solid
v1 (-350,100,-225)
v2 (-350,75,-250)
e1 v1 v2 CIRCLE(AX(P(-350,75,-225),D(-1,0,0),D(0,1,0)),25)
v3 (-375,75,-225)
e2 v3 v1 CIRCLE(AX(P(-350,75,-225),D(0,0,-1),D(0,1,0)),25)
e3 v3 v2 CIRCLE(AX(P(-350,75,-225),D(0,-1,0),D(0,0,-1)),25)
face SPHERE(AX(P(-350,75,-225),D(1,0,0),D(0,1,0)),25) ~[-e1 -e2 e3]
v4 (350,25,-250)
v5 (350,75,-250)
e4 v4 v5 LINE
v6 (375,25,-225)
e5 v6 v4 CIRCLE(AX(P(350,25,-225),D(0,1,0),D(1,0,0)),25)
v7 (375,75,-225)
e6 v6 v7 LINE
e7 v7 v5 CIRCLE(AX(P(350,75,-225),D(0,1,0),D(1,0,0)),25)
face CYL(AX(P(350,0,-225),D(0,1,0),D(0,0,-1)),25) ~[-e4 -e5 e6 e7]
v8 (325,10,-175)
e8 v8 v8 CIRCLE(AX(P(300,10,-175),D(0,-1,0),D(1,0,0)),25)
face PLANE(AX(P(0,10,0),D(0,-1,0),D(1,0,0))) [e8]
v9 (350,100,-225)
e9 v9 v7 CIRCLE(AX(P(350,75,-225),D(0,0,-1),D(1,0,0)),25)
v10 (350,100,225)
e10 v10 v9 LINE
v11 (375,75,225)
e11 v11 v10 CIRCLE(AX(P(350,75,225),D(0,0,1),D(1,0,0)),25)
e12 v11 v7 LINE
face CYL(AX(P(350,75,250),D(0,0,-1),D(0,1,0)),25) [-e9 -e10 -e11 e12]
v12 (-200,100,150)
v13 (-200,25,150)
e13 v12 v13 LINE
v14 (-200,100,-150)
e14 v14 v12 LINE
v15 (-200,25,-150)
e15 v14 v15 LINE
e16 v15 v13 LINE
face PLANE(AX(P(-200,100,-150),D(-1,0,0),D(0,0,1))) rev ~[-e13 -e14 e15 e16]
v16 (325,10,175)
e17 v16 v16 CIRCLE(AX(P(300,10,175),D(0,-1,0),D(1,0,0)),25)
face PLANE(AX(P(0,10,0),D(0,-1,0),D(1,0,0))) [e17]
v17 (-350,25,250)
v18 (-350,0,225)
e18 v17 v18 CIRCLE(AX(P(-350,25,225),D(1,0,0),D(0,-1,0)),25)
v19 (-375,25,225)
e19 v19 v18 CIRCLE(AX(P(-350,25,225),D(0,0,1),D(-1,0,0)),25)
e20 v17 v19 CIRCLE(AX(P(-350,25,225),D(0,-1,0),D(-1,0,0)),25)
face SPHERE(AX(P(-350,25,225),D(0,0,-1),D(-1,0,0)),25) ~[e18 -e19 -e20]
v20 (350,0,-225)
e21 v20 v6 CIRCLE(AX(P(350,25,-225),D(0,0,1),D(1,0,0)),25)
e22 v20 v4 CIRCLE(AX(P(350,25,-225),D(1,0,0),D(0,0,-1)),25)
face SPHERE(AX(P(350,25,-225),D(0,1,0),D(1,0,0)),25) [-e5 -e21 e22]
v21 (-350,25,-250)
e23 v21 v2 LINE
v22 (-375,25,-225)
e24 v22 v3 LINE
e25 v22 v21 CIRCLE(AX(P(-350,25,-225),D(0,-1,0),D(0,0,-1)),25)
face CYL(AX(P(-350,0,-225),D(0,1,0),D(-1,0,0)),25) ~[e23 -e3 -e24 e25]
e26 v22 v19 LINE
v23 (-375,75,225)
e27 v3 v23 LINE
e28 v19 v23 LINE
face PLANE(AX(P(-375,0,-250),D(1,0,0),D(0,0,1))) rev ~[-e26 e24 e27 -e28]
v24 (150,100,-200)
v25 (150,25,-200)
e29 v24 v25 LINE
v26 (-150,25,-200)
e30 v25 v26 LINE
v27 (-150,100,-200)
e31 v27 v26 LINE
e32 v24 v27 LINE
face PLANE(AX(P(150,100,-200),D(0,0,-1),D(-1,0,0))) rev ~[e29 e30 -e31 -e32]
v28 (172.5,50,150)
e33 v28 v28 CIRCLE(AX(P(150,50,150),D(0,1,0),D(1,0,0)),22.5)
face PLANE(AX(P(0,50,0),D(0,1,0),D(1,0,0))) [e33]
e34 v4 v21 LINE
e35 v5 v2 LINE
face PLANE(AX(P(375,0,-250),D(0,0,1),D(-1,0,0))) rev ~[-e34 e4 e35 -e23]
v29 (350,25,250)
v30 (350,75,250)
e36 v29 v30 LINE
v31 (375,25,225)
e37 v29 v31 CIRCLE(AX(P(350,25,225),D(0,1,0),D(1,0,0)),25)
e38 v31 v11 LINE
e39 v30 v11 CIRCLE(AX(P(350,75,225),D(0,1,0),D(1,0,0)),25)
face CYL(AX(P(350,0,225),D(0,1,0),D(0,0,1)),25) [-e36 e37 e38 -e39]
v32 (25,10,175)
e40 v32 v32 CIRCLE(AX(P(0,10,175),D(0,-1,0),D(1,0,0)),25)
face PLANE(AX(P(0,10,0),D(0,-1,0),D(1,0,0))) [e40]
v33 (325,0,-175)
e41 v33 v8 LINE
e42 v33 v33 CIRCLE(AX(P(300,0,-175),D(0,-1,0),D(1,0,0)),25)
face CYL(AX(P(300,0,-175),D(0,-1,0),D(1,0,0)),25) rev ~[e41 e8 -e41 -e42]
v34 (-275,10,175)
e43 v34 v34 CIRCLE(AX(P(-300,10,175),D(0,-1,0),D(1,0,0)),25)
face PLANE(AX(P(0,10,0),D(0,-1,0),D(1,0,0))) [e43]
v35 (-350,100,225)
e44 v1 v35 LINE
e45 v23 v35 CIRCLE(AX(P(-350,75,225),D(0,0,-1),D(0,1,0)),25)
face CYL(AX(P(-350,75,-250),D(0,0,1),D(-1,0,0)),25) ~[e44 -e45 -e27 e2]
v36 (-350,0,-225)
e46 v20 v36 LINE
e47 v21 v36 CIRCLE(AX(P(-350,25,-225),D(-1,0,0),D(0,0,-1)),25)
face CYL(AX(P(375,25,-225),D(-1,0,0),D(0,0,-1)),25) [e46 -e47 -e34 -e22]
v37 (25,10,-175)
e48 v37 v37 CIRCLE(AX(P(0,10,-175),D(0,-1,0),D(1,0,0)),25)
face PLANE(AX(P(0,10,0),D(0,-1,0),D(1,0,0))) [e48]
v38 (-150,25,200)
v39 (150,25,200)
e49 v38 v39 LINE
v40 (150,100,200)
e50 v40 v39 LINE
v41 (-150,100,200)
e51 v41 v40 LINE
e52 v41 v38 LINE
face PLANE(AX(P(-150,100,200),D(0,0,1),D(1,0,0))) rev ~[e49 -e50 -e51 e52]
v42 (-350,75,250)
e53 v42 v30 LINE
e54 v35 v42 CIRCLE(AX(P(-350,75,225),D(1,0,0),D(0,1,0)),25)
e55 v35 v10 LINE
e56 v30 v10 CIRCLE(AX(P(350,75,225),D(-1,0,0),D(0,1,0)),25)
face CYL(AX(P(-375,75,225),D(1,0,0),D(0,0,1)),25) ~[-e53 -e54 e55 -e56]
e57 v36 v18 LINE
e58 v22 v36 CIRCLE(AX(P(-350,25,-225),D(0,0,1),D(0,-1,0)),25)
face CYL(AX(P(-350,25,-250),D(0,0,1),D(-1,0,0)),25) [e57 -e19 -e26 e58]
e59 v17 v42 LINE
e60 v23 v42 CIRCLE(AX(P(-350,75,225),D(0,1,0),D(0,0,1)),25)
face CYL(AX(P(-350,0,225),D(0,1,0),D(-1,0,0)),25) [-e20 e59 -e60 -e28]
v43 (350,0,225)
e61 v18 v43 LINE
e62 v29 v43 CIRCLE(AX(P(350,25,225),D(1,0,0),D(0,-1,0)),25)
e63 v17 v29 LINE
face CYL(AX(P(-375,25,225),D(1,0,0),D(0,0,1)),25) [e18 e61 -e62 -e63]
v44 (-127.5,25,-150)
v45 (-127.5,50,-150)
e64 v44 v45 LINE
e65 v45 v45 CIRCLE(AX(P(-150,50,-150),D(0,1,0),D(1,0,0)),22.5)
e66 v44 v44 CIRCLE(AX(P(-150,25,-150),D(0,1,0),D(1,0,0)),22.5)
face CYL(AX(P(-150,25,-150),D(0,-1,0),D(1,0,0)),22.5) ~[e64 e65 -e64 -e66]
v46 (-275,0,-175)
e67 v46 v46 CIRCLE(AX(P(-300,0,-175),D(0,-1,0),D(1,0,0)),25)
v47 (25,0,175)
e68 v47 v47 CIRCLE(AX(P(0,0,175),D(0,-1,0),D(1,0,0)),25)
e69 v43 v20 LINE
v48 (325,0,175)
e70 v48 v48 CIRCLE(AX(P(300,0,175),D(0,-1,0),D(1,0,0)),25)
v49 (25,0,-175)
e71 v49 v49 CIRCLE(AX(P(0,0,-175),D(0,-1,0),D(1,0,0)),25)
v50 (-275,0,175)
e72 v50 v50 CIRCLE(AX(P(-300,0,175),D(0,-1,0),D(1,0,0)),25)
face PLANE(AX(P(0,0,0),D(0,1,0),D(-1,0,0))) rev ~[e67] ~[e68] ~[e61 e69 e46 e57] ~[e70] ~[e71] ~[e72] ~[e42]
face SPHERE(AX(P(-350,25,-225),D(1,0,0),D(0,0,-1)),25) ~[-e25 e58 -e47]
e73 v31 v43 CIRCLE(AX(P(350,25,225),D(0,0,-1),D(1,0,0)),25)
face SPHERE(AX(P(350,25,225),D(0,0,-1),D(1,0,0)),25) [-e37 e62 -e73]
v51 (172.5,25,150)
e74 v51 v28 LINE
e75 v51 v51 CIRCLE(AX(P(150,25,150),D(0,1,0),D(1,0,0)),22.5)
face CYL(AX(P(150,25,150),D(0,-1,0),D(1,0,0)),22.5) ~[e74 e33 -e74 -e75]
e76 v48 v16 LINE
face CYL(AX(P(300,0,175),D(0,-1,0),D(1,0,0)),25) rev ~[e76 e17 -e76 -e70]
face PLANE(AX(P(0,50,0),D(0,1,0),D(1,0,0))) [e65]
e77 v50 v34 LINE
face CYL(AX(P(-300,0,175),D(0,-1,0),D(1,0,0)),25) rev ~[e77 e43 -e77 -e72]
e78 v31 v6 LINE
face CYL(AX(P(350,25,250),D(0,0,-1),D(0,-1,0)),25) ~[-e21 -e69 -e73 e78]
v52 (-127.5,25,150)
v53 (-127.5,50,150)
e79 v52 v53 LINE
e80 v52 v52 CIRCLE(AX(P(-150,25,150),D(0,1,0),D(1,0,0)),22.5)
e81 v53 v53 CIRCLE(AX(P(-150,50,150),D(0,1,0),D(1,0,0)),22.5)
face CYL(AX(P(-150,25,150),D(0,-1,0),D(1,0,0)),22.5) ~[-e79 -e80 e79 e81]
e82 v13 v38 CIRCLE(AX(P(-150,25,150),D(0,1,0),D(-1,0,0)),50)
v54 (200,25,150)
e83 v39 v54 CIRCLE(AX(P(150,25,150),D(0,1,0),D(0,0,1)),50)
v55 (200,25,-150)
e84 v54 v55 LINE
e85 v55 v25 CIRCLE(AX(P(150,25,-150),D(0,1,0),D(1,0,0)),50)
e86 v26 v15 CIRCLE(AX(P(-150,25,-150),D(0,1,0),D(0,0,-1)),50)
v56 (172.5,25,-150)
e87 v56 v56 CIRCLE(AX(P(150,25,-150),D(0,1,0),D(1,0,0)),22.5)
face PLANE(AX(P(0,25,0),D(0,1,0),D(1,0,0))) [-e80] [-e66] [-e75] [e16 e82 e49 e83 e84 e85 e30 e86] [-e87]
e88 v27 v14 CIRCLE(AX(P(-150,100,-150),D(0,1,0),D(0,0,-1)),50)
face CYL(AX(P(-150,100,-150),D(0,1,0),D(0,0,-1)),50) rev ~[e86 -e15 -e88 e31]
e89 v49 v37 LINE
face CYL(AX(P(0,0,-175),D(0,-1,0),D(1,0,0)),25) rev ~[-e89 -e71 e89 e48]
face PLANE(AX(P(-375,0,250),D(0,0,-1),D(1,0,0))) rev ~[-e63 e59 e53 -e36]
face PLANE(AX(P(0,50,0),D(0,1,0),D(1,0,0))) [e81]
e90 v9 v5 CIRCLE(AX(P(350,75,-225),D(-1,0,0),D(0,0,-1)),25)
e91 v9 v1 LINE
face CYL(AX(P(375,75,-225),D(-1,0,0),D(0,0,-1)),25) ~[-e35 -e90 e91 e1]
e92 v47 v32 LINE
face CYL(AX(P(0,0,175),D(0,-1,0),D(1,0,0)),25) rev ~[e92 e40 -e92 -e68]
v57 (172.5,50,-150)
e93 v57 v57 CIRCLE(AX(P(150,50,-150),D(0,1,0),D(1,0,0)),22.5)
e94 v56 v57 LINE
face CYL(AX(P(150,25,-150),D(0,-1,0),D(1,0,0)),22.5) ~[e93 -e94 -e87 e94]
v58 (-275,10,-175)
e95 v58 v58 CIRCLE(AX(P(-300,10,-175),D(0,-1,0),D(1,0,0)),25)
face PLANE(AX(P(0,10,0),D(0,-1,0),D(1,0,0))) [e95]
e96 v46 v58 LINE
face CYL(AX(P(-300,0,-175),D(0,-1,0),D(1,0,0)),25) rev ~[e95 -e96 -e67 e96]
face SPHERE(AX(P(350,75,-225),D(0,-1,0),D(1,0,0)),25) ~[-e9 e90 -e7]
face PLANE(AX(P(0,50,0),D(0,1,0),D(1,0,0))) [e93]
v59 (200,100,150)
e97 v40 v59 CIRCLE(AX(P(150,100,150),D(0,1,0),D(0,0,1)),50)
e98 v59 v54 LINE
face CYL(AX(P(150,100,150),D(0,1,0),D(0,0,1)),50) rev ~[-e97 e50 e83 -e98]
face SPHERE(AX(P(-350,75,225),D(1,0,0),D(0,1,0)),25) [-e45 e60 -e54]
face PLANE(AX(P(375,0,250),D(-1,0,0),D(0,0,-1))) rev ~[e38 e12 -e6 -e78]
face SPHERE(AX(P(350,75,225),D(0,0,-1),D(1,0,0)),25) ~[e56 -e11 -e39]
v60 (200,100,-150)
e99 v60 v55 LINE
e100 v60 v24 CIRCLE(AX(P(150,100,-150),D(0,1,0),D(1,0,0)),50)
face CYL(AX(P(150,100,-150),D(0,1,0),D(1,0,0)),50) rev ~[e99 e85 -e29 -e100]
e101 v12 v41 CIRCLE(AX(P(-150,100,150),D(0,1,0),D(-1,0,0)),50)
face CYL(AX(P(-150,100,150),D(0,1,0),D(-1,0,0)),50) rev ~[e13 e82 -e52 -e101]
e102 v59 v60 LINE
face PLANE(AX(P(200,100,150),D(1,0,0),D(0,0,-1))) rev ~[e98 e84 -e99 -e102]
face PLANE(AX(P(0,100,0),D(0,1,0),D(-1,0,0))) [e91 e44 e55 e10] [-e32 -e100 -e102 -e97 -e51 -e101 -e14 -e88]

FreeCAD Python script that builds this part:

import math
import FreeCAD as App
import Part
import Sketcher

V = App.Vector


def edges_at(feature, points):
    """Names of the edges that pass closest to the given points."""
    edges = feature.Shape.Edges
    near = lambda p: min(range(len(edges)), key=lambda i: edges[i].distToShape(Part.Vertex(*p))[0])
    return sorted({f"Edge{near(p) + 1}" for p in points})

doc = App.newDocument("Part")
body = doc.addObject("PartDesign::Body", "Body")

# Sketch on XZ plane
sketch1 = body.newObject("Sketcher::SketchObject", "Sketch")
sketch1.AttachmentSupport = (doc.getObject("XZ_Plane"), [""])
sketch1.MapMode = "FlatFace"
sketch1.addGeometry([
    Part.LineSegment(V(-375, -250, 0), V(-375, 250, 0)),
    Part.LineSegment(V(-375, 250, 0), V(375, 250, 0)),
    Part.LineSegment(V(375, 250, 0), V(375, -250, 0)),
    Part.LineSegment(V(375, -250, 0), V(-375, -250, 0)),
], False)
sketch1.addConstraint([
    Sketcher.Constraint("Coincident", 0, 2, 1, 1),
    Sketcher.Constraint("Coincident", 1, 2, 2, 1),
    Sketcher.Constraint("Coincident", 2, 2, 3, 1),
    Sketcher.Constraint("Coincident", 3, 2, 0, 1),
    Sketcher.Constraint("Vertical", 0),
    Sketcher.Constraint("Horizontal", 1),
    Sketcher.Constraint("Vertical", 2),
    Sketcher.Constraint("Horizontal", 3),
    Sketcher.Constraint("Symmetric", 0, 2, 2, 2, -1, 1),
    Sketcher.Constraint("DistanceX", 1, 1, 1, 2, 750.0),
    Sketcher.Constraint("DistanceY", 0, 1, 0, 2, 500.0),
])
pad1 = body.newObject("PartDesign::Pad", "Pad")
pad1.Profile = sketch1
pad1.Length = 100
pad1.Reversed = True

# Sketch on XZ plane
sketch2 = body.newObject("Sketcher::SketchObject", "Sketch001")
sketch2.AttachmentSupport = (doc.getObject("XZ_Plane"), [""])
sketch2.MapMode = "FlatFace"
sketch2.AttachmentOffset = App.Placement(V(0, 0, -100), App.Rotation())
sketch2.addGeometry([
    Part.ArcOfCircle(Part.Circle(V(-150, 150, 0), V(0, 0, 1), 50), math.radians(90), math.radians(180)),  # 0
    Part.LineSegment(V(-150, 200, 0), V(150, 200, 0)),  # 1
    Part.ArcOfCircle(Part.Circle(V(150, 150, 0), V(0, 0, 1), 50), math.radians(0), math.radians(90)),  # 2
    Part.LineSegment(V(200, 150, 0), V(200, -150, 0)),  # 3
    Part.ArcOfCircle(Part.Circle(V(150, -150, 0), V(0, 0, 1), 50), math.radians(-90), math.radians(0)),  # 4
    Part.LineSegment(V(150, -200, 0), V(-150, -200, 0)),  # 5
    Part.ArcOfCircle(Part.Circle(V(-150, -150, 0), V(0, 0, 1), 50), math.radians(180), math.radians(270)),  # 6
    Part.LineSegment(V(-200, -150, 0), V(-200, 150, 0)),  # 7
], False)
sketch2.addConstraint([
    Sketcher.Constraint("Tangent", 0, 1, 1, 1),
    Sketcher.Constraint("Tangent", 1, 2, 2, 2),
    Sketcher.Constraint("Tangent", 2, 1, 3, 1),
    Sketcher.Constraint("Tangent", 3, 2, 4, 2),
    Sketcher.Constraint("Tangent", 4, 1, 5, 1),
    Sketcher.Constraint("Tangent", 5, 2, 6, 2),
    Sketcher.Constraint("Tangent", 6, 1, 7, 1),
    Sketcher.Constraint("Tangent", 7, 2, 0, 2),
    Sketcher.Constraint("Horizontal", 1),
    Sketcher.Constraint("Vertical", 3),
    Sketcher.Constraint("Horizontal", 5),
    Sketcher.Constraint("Vertical", 7),
    Sketcher.Constraint("Equal", 0, 2),
    Sketcher.Constraint("Equal", 2, 4),
    Sketcher.Constraint("Equal", 4, 6),
    Sketcher.Constraint("Symmetric", 0, 3, 4, 3, -1, 1),
    Sketcher.Constraint("Equal", 5, 3),
    Sketcher.Constraint("Radius", 0, 50.0),
    Sketcher.Constraint("DistanceX", 1, 1, 1, 2, 300.0),
])
pocket1 = body.newObject("PartDesign::Pocket", "Pocket")
pocket1.Profile = sketch2
pocket1.Length = 75
pocket1.Reversed = True
doc.recompute()

fillet = body.newObject("PartDesign::Fillet", "Fillet")
fillet.Base = (pocket1, edges_at(pocket1, [
    (375, 50, -250),
    (375, 0, 0),
    (375, 100, 0),
    (375, 50, 250),
    (0, 100, 250),
    (0, 100, -250),
    (-375, 100, 0),
    (0, 0, -250),
    (-375, 50, -250),
    (-375, 0, 0),
    (-375, 50, 250),
    (0, 0, 250),
]))
fillet.Radius = 25

# Sketch on XZ plane
sketch3 = body.newObject("Sketcher::SketchObject", "Sketch002")
sketch3.AttachmentSupport = (doc.getObject("XZ_Plane"), [""])
sketch3.MapMode = "FlatFace"
sketch3.addGeometry([
    Part.Circle(V(-300, -175, 0), V(0, 0, 1), 25),  # 0
    Part.Circle(V(-300, 175, 0), V(0, 0, 1), 25),  # 1
    Part.Circle(V(0, -175, 0), V(0, 0, 1), 25),  # 2
    Part.Circle(V(0, 175, 0), V(0, 0, 1), 25),  # 3
    Part.Circle(V(300, -175, 0), V(0, 0, 1), 25),  # 4
    Part.Circle(V(300, 175, 0), V(0, 0, 1), 25),  # 5
], False)
sketch3.addConstraint([
    Sketcher.Constraint("Equal", 0, 1),
    Sketcher.Constraint("Equal", 1, 2),
    Sketcher.Constraint("Equal", 2, 3),
    Sketcher.Constraint("Equal", 3, 4),
    Sketcher.Constraint("Equal", 4, 5),
    Sketcher.Constraint("Symmetric", 2, 3, 3, 3, -1, 1),
    Sketcher.Constraint("Symmetric", 1, 3, 4, 3, -1, 1),
    Sketcher.Constraint("Symmetric", 0, 3, 5, 3, -1, 1),
    Sketcher.Constraint("Symmetric", 0, 3, 4, 3, -2),
    Sketcher.Constraint("PointOnObject", 2, 3, -2),
    Sketcher.Constraint("Horizontal", 0, 3, 2, 3),
    Sketcher.Constraint("Diameter", 0, 50.0),
    Sketcher.Constraint("DistanceY", 0, 3, 1, 3, 350.0),
    Sketcher.Constraint("DistanceX", 0, 3, 4, 3, 600.0),
])
pocket2 = body.newObject("PartDesign::Pocket", "Pocket001")
pocket2.Profile = sketch3
pocket2.Length = 10

# Sketch on XZ plane
sketch4 = body.newObject("Sketcher::SketchObject", "Sketch003")
sketch4.AttachmentSupport = (doc.getObject("XZ_Plane"), [""])
sketch4.MapMode = "FlatFace"
sketch4.AttachmentOffset = App.Placement(V(0, 0, -25), App.Rotation())
sketch4.addGeometry([
    Part.Circle(V(-150, -150, 0), V(0, 0, 1), 22),
    Part.Circle(V(150, -150, 0), V(0, 0, 1), 22),
    Part.Circle(V(150, 150, 0), V(0, 0, 1), 22),
    Part.Circle(V(-150, 150, 0), V(0, 0, 1), 22),
], False)
sketch4.addConstraint([
    Sketcher.Constraint("Equal", 0, 1),
    Sketcher.Constraint("Equal", 1, 2),
    Sketcher.Constraint("Equal", 2, 3),
    Sketcher.Constraint("Symmetric", 0, 3, 2, 3, -1, 1),
    Sketcher.Constraint("Symmetric", 1, 3, 3, 3, -1, 1),
    Sketcher.Constraint("Symmetric", 0, 3, 1, 3, -2),
    Sketcher.Constraint("Diameter", 0, 45.0),
    Sketcher.Constraint("DistanceX", 0, 3, -1, 1, 150.0),
    Sketcher.Constraint("DistanceY", 0, 3, -1, 1, 150.0),
])
pad2 = body.newObject("PartDesign::Pad", "Pad001")
pad2.Profile = sketch4
pad2.Length = 25
pad2.Reversed = True

doc.recompute()
